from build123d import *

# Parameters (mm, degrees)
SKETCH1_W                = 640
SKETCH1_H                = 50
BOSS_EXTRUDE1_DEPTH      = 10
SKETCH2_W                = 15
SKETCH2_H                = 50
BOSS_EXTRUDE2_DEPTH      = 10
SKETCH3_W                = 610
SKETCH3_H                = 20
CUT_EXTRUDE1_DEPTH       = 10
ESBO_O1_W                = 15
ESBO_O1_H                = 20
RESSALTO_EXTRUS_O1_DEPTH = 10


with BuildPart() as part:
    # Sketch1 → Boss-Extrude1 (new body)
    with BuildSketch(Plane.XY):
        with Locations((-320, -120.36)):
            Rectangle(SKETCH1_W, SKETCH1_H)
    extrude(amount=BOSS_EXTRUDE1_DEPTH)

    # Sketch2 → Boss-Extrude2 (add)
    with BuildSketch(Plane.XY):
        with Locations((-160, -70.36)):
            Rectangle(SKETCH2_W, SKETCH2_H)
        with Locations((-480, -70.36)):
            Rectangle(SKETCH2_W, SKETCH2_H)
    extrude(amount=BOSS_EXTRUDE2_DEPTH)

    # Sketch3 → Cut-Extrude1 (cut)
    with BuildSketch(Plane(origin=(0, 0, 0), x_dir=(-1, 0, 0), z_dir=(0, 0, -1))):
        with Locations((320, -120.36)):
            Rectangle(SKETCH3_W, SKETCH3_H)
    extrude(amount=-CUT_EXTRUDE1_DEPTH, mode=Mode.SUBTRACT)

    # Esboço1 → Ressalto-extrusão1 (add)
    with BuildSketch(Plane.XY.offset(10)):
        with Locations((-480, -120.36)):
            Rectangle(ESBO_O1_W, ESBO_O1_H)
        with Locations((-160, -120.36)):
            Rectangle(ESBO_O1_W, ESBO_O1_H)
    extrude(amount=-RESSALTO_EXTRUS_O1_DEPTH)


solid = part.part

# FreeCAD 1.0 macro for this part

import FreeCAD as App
import Part
import Sketcher
from FreeCAD import Vector
Q = App.Units.Quantity


def add_polygon(sketch, points):
    """Adds a closed chain of lines whose ends are joined by coincident constraints."""
    first, n = sketch.GeometryCount, len(points)
    for a, b in zip(points, points[1:] + points[:1]):
        sketch.addGeometry(Part.LineSegment(App.Vector(*a, 0), App.Vector(*b, 0)), False)
    for i in range(n):
        sketch.addConstraint(Sketcher.Constraint("Coincident", first + i, 2, first + (i + 1) % n, 1))

doc = App.newDocument("Part")
body = doc.addObject("PartDesign::Body", "Body")

# Sketch on XY plane
sketch1 = body.newObject("Sketcher::SketchObject", "Sketch")
sketch1.AttachmentSupport = (doc.getObject("XY_Plane"), [""])
sketch1.MapMode = "FlatFace"
add_polygon(sketch1, [(-640, -95), (-640, -145), (0, -145), (0, -95)])  # lines 0-3
sketch1.addConstraint([
    Sketcher.Constraint("Vertical", 0),
    Sketcher.Constraint("Horizontal", 1),
    Sketcher.Constraint("Vertical", 2),
    Sketcher.Constraint("Horizontal", 3),
    Sketcher.Constraint("PointOnObject", 1, 2, -2),
    Sketcher.Constraint("DistanceX", 1, 1, 1, 2, Q("640 mm")),
    Sketcher.Constraint("DistanceY", 0, 2, 0, 1, Q("50 mm")),
    Sketcher.Constraint("DistanceY", 0, 2, -1, 1, Q("145.36 mm")),
])
pad1 = body.newObject("PartDesign::Pad", "Pad")
pad1.Profile = sketch1
pad1.Length = 10

# Sketch on XY plane
sketch2 = body.newObject("Sketcher::SketchObject", "Sketch001")
sketch2.AttachmentSupport = (doc.getObject("XY_Plane"), [""])
sketch2.MapMode = "FlatFace"
add_polygon(sketch2, [(-168, -45), (-168, -95), (-152, -95), (-152, -45)])  # lines 0-3
add_polygon(sketch2, [(-488, -45), (-488, -95), (-472, -95), (-472, -45)])  # lines 4-7
sketch2.addConstraint([
    Sketcher.Constraint("Vertical", 0),
    Sketcher.Constraint("Horizontal", 1),
    Sketcher.Constraint("Vertical", 2),
    Sketcher.Constraint("Horizontal", 3),
    Sketcher.Constraint("Vertical", 4),
    Sketcher.Constraint("Horizontal", 5),
    Sketcher.Constraint("Vertical", 6),
    Sketcher.Constraint("Horizontal", 7),
    Sketcher.Constraint("Horizontal", 1, 2, 4, 2),
    Sketcher.Constraint("Horizontal", 3, 2, 6, 2),
    Sketcher.Constraint("Equal", 3, 5),
    Sketcher.Constraint("DistanceX", 1, 1, 1, 2, Q("15 mm")),
    Sketcher.Constraint("DistanceY", 0, 2, 0, 1, Q("50 mm")),
    Sketcher.Constraint("DistanceX", 4, 2, 0, 2, Q("320 mm")),
    Sketcher.Constraint("DistanceX", 0, 2, -1, 1, Q("167.5 mm")),
    Sketcher.Constraint("DistanceY", 0, 2, -1, 1, Q("95.36 mm")),
])
pad2 = body.newObject("PartDesign::Pad", "Pad001")
pad2.Profile = sketch2
pad2.Length = 10

# Sketch on XY plane
sketch3 = body.newObject("Sketcher::SketchObject", "Sketch002")
sketch3.AttachmentSupport = (doc.getObject("XY_Plane"), [""])
sketch3.MapMode = "FlatFace"
add_polygon(sketch3, [(-15, -110), (-15, -130), (-625, -130), (-625, -110)])  # lines 0-3
sketch3.addConstraint([
    Sketcher.Constraint("Vertical", 0),
    Sketcher.Constraint("Horizontal", 1),
    Sketcher.Constraint("Vertical", 2),
    Sketcher.Constraint("Horizontal", 3),
    Sketcher.Constraint("DistanceX", 1, 2, 1, 1, Q("610 mm")),
    Sketcher.Constraint("DistanceY", 0, 2, 0, 1, Q("20 mm")),
    Sketcher.Constraint("DistanceX", 0, 2, -1, 1, Q("15 mm")),
    Sketcher.Constraint("DistanceY", 0, 2, -1, 1, Q("130.36 mm")),
])
pocket1 = body.newObject("PartDesign::Pocket", "Pocket")
pocket1.Profile = sketch3
pocket1.Length = 10
pocket1.Reversed = True

# Sketch on XY plane
sketch4 = body.newObject("Sketcher::SketchObject", "Sketch003")
sketch4.AttachmentSupport = (doc.getObject("XY_Plane"), [""])
sketch4.MapMode = "FlatFace"
sketch4.AttachmentOffset = App.Placement(Vector(0, 0, 10), App.Rotation())
add_polygon(sketch4, [(-488, -110), (-488, -130), (-472, -130), (-472, -110)])  # lines 0-3
add_polygon(sketch4, [(-168, -110), (-168, -130), (-152, -130), (-152, -110)])  # lines 4-7
sketch4.addConstraint([
    Sketcher.Constraint("Vertical", 0),
    Sketcher.Constraint("Horizontal", 1),
    Sketcher.Constraint("Vertical", 2),
    Sketcher.Constraint("Horizontal", 3),
    Sketcher.Constraint("Vertical", 4),
    Sketcher.Constraint("Horizontal", 5),
    Sketcher.Constraint("Vertical", 6),
    Sketcher.Constraint("Horizontal", 7),
    Sketcher.Constraint("Horizontal", 1, 2, 4, 2),
    Sketcher.Constraint("Horizontal", 3, 2, 6, 2),
    Sketcher.Constraint("Equal", 3, 5),
    Sketcher.Constraint("DistanceX", 1, 1, 1, 2, Q("15 mm")),
    Sketcher.Constraint("DistanceY", 0, 2, 0, 1, Q("20 mm")),
    Sketcher.Constraint("DistanceX", 1, 2, 4, 2, Q("305 mm")),
    Sketcher.Constraint("DistanceX", 0, 2, -1, 1, Q("487.5 mm")),
    Sketcher.Constraint("DistanceY", 0, 2, -1, 1, Q("130.36 mm")),
])
pad3 = body.newObject("PartDesign::Pad", "Pad002")
pad3.Profile = sketch4
pad3.Length = 10
pad3.Reversed = True

doc.recompute()
